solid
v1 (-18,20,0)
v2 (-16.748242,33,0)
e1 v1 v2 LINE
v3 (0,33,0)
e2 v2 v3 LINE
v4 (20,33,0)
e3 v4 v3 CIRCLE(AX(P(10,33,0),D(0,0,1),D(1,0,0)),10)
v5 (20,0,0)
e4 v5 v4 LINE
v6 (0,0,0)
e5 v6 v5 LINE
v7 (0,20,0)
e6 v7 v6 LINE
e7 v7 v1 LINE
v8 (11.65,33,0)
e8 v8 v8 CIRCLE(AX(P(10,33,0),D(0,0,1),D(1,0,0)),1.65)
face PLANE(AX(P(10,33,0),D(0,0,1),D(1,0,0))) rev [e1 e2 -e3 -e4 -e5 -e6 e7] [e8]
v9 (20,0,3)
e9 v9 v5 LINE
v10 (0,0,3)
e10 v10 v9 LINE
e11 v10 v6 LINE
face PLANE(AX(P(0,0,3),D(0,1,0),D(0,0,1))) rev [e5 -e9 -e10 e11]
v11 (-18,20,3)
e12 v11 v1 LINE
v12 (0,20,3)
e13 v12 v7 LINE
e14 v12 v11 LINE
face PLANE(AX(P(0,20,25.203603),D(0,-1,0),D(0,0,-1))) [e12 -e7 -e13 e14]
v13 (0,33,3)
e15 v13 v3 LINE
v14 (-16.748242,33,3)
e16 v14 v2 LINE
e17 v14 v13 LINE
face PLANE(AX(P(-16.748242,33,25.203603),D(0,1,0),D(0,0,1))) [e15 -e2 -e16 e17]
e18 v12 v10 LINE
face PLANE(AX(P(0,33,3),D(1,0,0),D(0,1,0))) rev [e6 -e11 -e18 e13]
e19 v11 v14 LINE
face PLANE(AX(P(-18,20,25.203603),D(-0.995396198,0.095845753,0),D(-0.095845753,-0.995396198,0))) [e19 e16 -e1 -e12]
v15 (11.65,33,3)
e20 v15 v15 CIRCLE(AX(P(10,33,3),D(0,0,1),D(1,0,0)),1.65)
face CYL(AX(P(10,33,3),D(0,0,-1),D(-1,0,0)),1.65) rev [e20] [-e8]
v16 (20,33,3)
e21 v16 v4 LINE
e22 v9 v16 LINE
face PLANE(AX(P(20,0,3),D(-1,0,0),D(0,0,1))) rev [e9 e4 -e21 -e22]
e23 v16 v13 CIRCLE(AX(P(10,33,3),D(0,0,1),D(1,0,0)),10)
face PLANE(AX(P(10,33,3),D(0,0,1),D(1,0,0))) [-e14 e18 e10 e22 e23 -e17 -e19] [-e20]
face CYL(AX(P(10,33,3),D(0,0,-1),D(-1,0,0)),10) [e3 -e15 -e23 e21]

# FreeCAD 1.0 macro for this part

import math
import FreeCAD as App
import Part
import Sketcher

V = App.Vector
Q = App.Units.Quantity

doc = App.newDocument("Part")
body = doc.addObject("PartDesign::Body", "Body")

sketch1 = doc.addObject("Sketcher::SketchObject", "Sketch")
body.addObject(sketch1)
sketch1.AttachmentSupport = (doc.XY_Plane, [""])
sketch1.MapMode = "FlatFace"
sketch1.addGeometry([
    Part.LineSegment(V(0, 0, 0), V(20, 0, 0)),
    Part.LineSegment(V(20, 0, 0), V(20, 33, 0)),
    Part.ArcOfCircle(Part.Circle(V(10, 33, 0), V(0, 0, 1), 10), math.radians(0), math.radians(180)),
    Part.LineSegment(V(0, 33, 0), V(0, 0, 0)),
    Part.Circle(V(10, 33, 0), V(0, 0, 1), 1.6),
], False)
sketch1.addConstraint([
    Sketcher.Constraint("Coincident", 0, 2, 1, 1),
    Sketcher.Constraint("Tangent", 1, 2, 2, 1),
    Sketcher.Constraint("Tangent", 2, 2, 3, 1),
    Sketcher.Constraint("Coincident", 3, 2, 0, 1),
    Sketcher.Constraint("Horizontal", 0),
    Sketcher.Constraint("Vertical", 1),
    Sketcher.Constraint("Vertical", 3),
    Sketcher.Constraint("Coincident", 3, 2, -1, 1),
    Sketcher.Constraint("Coincident", 4, 3, 2, 3),
    Sketcher.Constraint("Radius", 2, Q("10 mm")),
    Sketcher.Constraint("Diameter", 4, Q("3.3 mm")),
    Sketcher.Constraint("DistanceY", 1, 1, 1, 2, Q("33 mm")),
])
pad1 = doc.addObject("PartDesign::Pad", "Pad")
body.addObject(pad1)
pad1.Profile = sketch1
pad1.Length = 3

sketch2 = doc.addObject("Sketcher::SketchObject", "Sketch001")
body.addObject(sketch2)
sketch2.AttachmentSupport = (doc.XY_Plane, [""])
sketch2.MapMode = "FlatFace"
sketch2.addGeometry([
    Part.LineSegment(V(0, 33, 0), V(0, 20, 0)),
    Part.LineSegment(V(0, 20, 0), V(-18, 20, 0)),
    Part.LineSegment(V(-18, 20, 0), V(-17, 33, 0)),
    Part.LineSegment(V(-17, 33, 0), V(0, 33, 0)),
], False)
sketch2.addConstraint([
    Sketcher.Constraint("Coincident", 0, 2, 1, 1),
    Sketcher.Constraint("Coincident", 1, 2, 2, 1),
    Sketcher.Constraint("Coincident", 2, 2, 3, 1),
    Sketcher.Constraint("Coincident", 3, 2, 0, 1),
    Sketcher.Constraint("Vertical", 0),
    Sketcher.Constraint("Horizontal", 1),
    Sketcher.Constraint("Horizontal", 3),
    Sketcher.Constraint("PointOnObject", 0, 2, -2),
    Sketcher.Constraint("DistanceX", 1, 2, 1, 1, Q("18 mm")),
    Sketcher.Constraint("DistanceY", 0, 2, 0, 1, Q("13 mm")),
    Sketcher.Constraint("DistanceY", -1, 1, 0, 2, Q("20 mm")),
    Sketcher.Constraint("Angle", 2, Q("84.5 deg")),
])
pad2 = doc.addObject("PartDesign::Pad", "Pad001")
body.addObject(pad2)
pad2.Profile = sketch2
pad2.Length = 3

doc.recompute()
